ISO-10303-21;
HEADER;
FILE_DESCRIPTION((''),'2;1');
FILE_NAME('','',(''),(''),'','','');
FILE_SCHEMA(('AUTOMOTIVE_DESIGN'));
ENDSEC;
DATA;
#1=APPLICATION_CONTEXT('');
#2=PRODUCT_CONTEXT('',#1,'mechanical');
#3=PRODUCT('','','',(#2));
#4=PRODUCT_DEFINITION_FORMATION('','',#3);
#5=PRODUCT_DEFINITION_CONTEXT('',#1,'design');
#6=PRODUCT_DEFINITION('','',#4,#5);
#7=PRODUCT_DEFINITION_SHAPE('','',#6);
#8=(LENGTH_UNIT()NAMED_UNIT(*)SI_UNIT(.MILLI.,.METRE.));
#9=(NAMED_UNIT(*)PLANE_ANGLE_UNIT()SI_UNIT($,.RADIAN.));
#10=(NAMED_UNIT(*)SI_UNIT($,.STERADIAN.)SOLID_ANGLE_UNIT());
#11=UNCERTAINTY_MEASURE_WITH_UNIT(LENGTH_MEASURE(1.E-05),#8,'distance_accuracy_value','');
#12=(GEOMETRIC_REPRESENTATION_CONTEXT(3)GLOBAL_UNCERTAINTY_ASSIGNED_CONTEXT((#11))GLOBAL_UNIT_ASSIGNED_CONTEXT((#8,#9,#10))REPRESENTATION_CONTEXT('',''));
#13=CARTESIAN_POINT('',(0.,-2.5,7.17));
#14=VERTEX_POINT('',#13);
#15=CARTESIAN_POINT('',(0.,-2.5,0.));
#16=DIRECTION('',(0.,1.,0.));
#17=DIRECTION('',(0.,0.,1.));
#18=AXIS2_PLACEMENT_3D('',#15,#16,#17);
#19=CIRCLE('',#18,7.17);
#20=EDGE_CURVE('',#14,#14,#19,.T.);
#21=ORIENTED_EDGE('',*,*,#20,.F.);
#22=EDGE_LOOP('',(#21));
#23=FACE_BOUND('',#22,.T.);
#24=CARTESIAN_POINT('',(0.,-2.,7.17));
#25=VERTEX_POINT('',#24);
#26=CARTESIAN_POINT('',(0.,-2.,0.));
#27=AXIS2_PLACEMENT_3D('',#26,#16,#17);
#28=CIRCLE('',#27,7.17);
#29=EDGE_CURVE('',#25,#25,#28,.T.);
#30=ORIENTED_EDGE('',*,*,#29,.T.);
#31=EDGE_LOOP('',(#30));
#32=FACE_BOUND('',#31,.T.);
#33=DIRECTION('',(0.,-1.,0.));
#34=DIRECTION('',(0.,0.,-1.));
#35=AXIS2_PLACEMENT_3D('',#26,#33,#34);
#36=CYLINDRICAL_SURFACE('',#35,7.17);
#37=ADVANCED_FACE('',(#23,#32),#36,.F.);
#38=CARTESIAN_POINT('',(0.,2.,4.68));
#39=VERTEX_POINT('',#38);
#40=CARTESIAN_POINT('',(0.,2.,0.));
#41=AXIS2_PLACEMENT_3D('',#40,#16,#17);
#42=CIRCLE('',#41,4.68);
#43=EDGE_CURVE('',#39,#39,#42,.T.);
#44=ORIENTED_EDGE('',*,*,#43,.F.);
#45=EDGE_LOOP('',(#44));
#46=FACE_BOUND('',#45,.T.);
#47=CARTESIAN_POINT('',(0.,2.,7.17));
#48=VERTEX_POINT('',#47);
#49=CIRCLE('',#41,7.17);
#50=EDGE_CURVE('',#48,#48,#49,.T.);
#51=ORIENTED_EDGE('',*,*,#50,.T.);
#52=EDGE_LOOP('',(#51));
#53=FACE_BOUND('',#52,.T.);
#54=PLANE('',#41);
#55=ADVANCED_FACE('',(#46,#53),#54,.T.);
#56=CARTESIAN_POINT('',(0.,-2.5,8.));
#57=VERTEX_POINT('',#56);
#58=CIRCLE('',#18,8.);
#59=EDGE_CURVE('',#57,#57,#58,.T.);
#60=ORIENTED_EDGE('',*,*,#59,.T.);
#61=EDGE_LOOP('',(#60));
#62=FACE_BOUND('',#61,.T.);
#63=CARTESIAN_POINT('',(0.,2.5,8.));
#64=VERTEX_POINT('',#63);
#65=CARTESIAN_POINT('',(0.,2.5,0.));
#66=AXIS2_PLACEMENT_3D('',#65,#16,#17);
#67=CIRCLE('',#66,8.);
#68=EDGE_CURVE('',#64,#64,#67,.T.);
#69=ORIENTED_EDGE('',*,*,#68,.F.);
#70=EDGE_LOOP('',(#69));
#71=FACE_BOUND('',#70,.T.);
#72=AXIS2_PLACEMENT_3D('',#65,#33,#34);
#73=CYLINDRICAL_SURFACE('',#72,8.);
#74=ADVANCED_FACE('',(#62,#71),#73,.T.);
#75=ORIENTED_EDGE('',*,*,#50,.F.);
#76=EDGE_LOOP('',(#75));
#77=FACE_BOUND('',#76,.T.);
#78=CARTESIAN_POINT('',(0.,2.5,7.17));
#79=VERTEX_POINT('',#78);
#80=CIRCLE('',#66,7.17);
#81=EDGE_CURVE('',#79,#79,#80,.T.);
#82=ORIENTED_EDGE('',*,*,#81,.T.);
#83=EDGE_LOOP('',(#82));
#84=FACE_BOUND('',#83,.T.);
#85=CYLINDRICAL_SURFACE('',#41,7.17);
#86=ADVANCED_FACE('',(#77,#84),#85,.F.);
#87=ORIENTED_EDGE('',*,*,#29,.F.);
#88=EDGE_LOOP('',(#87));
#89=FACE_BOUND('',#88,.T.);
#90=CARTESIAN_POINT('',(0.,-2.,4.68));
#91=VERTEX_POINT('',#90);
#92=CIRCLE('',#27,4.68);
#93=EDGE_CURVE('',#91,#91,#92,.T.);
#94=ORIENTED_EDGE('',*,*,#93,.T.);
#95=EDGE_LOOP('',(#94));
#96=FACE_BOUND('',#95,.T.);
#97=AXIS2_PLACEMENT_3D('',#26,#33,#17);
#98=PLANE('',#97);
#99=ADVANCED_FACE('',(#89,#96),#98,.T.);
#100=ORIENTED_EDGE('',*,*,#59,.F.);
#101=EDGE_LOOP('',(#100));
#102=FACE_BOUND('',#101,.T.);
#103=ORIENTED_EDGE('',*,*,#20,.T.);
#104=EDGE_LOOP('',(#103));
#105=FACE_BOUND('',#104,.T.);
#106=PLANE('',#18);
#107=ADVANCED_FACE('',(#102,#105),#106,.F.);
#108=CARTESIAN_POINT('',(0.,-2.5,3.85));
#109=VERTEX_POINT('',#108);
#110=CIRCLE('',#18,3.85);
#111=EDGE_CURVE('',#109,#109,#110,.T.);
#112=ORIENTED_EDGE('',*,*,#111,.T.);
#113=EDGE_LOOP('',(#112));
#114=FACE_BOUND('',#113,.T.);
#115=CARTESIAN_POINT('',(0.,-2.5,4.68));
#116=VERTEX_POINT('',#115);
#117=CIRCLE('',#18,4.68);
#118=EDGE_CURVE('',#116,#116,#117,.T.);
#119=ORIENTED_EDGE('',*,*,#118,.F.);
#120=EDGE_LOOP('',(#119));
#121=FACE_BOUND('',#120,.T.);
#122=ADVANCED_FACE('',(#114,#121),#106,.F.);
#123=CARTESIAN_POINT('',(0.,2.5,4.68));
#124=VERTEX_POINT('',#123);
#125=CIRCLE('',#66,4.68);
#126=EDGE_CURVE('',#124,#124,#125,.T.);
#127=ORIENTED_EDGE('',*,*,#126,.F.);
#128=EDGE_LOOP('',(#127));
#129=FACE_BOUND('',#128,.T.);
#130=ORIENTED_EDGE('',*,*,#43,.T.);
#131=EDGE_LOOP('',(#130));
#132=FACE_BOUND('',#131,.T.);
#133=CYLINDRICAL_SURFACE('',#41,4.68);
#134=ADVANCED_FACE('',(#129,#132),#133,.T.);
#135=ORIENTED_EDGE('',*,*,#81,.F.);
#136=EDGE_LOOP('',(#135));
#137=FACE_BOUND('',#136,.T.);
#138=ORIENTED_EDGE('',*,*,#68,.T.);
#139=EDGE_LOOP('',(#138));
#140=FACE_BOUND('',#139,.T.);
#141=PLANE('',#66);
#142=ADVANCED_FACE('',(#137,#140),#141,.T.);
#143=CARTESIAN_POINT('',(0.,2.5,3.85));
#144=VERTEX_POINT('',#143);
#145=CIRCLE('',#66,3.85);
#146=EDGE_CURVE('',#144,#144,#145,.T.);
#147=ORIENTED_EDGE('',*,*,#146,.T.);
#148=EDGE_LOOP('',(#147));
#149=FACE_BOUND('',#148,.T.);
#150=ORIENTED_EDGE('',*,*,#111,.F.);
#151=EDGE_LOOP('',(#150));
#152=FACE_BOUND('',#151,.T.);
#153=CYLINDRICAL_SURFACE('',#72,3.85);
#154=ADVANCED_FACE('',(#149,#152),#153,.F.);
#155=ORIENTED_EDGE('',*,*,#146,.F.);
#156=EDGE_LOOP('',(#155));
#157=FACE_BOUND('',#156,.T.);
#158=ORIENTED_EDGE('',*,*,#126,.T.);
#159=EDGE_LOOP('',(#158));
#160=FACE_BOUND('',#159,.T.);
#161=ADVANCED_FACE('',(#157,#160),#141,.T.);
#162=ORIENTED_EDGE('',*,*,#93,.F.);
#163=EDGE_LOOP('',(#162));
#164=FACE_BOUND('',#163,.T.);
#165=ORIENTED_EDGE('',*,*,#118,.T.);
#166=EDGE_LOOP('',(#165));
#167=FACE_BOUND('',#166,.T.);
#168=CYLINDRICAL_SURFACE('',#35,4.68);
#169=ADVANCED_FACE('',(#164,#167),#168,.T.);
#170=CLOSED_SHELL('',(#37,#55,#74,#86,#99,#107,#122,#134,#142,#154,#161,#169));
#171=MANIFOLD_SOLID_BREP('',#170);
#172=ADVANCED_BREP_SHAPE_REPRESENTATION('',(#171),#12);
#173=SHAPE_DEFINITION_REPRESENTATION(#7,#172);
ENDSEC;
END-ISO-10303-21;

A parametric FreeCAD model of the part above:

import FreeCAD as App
import Part
import Sketcher

doc = App.newDocument("Part")
body = doc.addObject("PartDesign::Body", "Body")

# Sketch on XZ plane
sketch1 = doc.addObject("Sketcher::SketchObject", "Sketch")
body.addObject(sketch1)
sketch1.AttachmentSupport = (doc.XZ_Plane, [""])
sketch1.MapMode = "FlatFace"
sketch1.addGeometry([
    Part.Circle(App.Vector(0, 0, 0), App.Vector(0, 0, 1), 8),
    Part.Circle(App.Vector(0, 0, 0), App.Vector(0, 0, 1), 3.9),
], False)
sketch1.addConstraint([
    Sketcher.Constraint("Coincident", 0, 3, -1, 1),
    Sketcher.Constraint("Coincident", 1, 3, -1, 1),
    Sketcher.Constraint("Diameter", 0, 16.0),
    Sketcher.Constraint("Diameter", 1, 7.7),
])
pad1 = doc.addObject("PartDesign::Pad", "Pad")
body.addObject(pad1)
pad1.Profile = sketch1
pad1.Length = 5
pad1.Midplane = True

# Sketch on XZ plane
sketch2 = doc.addObject("Sketcher::SketchObject", "Sketch001")
body.addObject(sketch2)
sketch2.AttachmentSupport = (doc.XZ_Plane, [""])
sketch2.MapMode = "FlatFace"
sketch2.AttachmentOffset = App.Placement(App.Vector(0, 0, -2.5), App.Rotation())
sketch2.addGeometry([
    Part.Circle(App.Vector(0, 0, 0), App.Vector(0, 0, 1), 7.2),
    Part.Circle(App.Vector(0, 0, 0), App.Vector(0, 0, 1), 4.7),
], False)
sketch2.addConstraint([
    Sketcher.Constraint("Coincident", 0, 3, -1, 1),
    Sketcher.Constraint("Coincident", 1, 3, -1, 1),
    Sketcher.Constraint("Diameter", 0, 14.34),
    Sketcher.Constraint("Diameter", 1, 9.36),
])
pocket1 = doc.addObject("PartDesign::Pocket", "Pocket")
body.addObject(pocket1)
pocket1.Profile = sketch2
pocket1.Length = 0.5
pocket1.Reversed = True
doc.recompute()

mirrored = doc.addObject("PartDesign::Mirrored", "Mirrored")
body.addObject(mirrored)
mirrored.Originals = [pocket1]
mirrored.MirrorPlane = (doc.XZ_Plane, [""])
body.Tip = mirrored

doc.recompute()
